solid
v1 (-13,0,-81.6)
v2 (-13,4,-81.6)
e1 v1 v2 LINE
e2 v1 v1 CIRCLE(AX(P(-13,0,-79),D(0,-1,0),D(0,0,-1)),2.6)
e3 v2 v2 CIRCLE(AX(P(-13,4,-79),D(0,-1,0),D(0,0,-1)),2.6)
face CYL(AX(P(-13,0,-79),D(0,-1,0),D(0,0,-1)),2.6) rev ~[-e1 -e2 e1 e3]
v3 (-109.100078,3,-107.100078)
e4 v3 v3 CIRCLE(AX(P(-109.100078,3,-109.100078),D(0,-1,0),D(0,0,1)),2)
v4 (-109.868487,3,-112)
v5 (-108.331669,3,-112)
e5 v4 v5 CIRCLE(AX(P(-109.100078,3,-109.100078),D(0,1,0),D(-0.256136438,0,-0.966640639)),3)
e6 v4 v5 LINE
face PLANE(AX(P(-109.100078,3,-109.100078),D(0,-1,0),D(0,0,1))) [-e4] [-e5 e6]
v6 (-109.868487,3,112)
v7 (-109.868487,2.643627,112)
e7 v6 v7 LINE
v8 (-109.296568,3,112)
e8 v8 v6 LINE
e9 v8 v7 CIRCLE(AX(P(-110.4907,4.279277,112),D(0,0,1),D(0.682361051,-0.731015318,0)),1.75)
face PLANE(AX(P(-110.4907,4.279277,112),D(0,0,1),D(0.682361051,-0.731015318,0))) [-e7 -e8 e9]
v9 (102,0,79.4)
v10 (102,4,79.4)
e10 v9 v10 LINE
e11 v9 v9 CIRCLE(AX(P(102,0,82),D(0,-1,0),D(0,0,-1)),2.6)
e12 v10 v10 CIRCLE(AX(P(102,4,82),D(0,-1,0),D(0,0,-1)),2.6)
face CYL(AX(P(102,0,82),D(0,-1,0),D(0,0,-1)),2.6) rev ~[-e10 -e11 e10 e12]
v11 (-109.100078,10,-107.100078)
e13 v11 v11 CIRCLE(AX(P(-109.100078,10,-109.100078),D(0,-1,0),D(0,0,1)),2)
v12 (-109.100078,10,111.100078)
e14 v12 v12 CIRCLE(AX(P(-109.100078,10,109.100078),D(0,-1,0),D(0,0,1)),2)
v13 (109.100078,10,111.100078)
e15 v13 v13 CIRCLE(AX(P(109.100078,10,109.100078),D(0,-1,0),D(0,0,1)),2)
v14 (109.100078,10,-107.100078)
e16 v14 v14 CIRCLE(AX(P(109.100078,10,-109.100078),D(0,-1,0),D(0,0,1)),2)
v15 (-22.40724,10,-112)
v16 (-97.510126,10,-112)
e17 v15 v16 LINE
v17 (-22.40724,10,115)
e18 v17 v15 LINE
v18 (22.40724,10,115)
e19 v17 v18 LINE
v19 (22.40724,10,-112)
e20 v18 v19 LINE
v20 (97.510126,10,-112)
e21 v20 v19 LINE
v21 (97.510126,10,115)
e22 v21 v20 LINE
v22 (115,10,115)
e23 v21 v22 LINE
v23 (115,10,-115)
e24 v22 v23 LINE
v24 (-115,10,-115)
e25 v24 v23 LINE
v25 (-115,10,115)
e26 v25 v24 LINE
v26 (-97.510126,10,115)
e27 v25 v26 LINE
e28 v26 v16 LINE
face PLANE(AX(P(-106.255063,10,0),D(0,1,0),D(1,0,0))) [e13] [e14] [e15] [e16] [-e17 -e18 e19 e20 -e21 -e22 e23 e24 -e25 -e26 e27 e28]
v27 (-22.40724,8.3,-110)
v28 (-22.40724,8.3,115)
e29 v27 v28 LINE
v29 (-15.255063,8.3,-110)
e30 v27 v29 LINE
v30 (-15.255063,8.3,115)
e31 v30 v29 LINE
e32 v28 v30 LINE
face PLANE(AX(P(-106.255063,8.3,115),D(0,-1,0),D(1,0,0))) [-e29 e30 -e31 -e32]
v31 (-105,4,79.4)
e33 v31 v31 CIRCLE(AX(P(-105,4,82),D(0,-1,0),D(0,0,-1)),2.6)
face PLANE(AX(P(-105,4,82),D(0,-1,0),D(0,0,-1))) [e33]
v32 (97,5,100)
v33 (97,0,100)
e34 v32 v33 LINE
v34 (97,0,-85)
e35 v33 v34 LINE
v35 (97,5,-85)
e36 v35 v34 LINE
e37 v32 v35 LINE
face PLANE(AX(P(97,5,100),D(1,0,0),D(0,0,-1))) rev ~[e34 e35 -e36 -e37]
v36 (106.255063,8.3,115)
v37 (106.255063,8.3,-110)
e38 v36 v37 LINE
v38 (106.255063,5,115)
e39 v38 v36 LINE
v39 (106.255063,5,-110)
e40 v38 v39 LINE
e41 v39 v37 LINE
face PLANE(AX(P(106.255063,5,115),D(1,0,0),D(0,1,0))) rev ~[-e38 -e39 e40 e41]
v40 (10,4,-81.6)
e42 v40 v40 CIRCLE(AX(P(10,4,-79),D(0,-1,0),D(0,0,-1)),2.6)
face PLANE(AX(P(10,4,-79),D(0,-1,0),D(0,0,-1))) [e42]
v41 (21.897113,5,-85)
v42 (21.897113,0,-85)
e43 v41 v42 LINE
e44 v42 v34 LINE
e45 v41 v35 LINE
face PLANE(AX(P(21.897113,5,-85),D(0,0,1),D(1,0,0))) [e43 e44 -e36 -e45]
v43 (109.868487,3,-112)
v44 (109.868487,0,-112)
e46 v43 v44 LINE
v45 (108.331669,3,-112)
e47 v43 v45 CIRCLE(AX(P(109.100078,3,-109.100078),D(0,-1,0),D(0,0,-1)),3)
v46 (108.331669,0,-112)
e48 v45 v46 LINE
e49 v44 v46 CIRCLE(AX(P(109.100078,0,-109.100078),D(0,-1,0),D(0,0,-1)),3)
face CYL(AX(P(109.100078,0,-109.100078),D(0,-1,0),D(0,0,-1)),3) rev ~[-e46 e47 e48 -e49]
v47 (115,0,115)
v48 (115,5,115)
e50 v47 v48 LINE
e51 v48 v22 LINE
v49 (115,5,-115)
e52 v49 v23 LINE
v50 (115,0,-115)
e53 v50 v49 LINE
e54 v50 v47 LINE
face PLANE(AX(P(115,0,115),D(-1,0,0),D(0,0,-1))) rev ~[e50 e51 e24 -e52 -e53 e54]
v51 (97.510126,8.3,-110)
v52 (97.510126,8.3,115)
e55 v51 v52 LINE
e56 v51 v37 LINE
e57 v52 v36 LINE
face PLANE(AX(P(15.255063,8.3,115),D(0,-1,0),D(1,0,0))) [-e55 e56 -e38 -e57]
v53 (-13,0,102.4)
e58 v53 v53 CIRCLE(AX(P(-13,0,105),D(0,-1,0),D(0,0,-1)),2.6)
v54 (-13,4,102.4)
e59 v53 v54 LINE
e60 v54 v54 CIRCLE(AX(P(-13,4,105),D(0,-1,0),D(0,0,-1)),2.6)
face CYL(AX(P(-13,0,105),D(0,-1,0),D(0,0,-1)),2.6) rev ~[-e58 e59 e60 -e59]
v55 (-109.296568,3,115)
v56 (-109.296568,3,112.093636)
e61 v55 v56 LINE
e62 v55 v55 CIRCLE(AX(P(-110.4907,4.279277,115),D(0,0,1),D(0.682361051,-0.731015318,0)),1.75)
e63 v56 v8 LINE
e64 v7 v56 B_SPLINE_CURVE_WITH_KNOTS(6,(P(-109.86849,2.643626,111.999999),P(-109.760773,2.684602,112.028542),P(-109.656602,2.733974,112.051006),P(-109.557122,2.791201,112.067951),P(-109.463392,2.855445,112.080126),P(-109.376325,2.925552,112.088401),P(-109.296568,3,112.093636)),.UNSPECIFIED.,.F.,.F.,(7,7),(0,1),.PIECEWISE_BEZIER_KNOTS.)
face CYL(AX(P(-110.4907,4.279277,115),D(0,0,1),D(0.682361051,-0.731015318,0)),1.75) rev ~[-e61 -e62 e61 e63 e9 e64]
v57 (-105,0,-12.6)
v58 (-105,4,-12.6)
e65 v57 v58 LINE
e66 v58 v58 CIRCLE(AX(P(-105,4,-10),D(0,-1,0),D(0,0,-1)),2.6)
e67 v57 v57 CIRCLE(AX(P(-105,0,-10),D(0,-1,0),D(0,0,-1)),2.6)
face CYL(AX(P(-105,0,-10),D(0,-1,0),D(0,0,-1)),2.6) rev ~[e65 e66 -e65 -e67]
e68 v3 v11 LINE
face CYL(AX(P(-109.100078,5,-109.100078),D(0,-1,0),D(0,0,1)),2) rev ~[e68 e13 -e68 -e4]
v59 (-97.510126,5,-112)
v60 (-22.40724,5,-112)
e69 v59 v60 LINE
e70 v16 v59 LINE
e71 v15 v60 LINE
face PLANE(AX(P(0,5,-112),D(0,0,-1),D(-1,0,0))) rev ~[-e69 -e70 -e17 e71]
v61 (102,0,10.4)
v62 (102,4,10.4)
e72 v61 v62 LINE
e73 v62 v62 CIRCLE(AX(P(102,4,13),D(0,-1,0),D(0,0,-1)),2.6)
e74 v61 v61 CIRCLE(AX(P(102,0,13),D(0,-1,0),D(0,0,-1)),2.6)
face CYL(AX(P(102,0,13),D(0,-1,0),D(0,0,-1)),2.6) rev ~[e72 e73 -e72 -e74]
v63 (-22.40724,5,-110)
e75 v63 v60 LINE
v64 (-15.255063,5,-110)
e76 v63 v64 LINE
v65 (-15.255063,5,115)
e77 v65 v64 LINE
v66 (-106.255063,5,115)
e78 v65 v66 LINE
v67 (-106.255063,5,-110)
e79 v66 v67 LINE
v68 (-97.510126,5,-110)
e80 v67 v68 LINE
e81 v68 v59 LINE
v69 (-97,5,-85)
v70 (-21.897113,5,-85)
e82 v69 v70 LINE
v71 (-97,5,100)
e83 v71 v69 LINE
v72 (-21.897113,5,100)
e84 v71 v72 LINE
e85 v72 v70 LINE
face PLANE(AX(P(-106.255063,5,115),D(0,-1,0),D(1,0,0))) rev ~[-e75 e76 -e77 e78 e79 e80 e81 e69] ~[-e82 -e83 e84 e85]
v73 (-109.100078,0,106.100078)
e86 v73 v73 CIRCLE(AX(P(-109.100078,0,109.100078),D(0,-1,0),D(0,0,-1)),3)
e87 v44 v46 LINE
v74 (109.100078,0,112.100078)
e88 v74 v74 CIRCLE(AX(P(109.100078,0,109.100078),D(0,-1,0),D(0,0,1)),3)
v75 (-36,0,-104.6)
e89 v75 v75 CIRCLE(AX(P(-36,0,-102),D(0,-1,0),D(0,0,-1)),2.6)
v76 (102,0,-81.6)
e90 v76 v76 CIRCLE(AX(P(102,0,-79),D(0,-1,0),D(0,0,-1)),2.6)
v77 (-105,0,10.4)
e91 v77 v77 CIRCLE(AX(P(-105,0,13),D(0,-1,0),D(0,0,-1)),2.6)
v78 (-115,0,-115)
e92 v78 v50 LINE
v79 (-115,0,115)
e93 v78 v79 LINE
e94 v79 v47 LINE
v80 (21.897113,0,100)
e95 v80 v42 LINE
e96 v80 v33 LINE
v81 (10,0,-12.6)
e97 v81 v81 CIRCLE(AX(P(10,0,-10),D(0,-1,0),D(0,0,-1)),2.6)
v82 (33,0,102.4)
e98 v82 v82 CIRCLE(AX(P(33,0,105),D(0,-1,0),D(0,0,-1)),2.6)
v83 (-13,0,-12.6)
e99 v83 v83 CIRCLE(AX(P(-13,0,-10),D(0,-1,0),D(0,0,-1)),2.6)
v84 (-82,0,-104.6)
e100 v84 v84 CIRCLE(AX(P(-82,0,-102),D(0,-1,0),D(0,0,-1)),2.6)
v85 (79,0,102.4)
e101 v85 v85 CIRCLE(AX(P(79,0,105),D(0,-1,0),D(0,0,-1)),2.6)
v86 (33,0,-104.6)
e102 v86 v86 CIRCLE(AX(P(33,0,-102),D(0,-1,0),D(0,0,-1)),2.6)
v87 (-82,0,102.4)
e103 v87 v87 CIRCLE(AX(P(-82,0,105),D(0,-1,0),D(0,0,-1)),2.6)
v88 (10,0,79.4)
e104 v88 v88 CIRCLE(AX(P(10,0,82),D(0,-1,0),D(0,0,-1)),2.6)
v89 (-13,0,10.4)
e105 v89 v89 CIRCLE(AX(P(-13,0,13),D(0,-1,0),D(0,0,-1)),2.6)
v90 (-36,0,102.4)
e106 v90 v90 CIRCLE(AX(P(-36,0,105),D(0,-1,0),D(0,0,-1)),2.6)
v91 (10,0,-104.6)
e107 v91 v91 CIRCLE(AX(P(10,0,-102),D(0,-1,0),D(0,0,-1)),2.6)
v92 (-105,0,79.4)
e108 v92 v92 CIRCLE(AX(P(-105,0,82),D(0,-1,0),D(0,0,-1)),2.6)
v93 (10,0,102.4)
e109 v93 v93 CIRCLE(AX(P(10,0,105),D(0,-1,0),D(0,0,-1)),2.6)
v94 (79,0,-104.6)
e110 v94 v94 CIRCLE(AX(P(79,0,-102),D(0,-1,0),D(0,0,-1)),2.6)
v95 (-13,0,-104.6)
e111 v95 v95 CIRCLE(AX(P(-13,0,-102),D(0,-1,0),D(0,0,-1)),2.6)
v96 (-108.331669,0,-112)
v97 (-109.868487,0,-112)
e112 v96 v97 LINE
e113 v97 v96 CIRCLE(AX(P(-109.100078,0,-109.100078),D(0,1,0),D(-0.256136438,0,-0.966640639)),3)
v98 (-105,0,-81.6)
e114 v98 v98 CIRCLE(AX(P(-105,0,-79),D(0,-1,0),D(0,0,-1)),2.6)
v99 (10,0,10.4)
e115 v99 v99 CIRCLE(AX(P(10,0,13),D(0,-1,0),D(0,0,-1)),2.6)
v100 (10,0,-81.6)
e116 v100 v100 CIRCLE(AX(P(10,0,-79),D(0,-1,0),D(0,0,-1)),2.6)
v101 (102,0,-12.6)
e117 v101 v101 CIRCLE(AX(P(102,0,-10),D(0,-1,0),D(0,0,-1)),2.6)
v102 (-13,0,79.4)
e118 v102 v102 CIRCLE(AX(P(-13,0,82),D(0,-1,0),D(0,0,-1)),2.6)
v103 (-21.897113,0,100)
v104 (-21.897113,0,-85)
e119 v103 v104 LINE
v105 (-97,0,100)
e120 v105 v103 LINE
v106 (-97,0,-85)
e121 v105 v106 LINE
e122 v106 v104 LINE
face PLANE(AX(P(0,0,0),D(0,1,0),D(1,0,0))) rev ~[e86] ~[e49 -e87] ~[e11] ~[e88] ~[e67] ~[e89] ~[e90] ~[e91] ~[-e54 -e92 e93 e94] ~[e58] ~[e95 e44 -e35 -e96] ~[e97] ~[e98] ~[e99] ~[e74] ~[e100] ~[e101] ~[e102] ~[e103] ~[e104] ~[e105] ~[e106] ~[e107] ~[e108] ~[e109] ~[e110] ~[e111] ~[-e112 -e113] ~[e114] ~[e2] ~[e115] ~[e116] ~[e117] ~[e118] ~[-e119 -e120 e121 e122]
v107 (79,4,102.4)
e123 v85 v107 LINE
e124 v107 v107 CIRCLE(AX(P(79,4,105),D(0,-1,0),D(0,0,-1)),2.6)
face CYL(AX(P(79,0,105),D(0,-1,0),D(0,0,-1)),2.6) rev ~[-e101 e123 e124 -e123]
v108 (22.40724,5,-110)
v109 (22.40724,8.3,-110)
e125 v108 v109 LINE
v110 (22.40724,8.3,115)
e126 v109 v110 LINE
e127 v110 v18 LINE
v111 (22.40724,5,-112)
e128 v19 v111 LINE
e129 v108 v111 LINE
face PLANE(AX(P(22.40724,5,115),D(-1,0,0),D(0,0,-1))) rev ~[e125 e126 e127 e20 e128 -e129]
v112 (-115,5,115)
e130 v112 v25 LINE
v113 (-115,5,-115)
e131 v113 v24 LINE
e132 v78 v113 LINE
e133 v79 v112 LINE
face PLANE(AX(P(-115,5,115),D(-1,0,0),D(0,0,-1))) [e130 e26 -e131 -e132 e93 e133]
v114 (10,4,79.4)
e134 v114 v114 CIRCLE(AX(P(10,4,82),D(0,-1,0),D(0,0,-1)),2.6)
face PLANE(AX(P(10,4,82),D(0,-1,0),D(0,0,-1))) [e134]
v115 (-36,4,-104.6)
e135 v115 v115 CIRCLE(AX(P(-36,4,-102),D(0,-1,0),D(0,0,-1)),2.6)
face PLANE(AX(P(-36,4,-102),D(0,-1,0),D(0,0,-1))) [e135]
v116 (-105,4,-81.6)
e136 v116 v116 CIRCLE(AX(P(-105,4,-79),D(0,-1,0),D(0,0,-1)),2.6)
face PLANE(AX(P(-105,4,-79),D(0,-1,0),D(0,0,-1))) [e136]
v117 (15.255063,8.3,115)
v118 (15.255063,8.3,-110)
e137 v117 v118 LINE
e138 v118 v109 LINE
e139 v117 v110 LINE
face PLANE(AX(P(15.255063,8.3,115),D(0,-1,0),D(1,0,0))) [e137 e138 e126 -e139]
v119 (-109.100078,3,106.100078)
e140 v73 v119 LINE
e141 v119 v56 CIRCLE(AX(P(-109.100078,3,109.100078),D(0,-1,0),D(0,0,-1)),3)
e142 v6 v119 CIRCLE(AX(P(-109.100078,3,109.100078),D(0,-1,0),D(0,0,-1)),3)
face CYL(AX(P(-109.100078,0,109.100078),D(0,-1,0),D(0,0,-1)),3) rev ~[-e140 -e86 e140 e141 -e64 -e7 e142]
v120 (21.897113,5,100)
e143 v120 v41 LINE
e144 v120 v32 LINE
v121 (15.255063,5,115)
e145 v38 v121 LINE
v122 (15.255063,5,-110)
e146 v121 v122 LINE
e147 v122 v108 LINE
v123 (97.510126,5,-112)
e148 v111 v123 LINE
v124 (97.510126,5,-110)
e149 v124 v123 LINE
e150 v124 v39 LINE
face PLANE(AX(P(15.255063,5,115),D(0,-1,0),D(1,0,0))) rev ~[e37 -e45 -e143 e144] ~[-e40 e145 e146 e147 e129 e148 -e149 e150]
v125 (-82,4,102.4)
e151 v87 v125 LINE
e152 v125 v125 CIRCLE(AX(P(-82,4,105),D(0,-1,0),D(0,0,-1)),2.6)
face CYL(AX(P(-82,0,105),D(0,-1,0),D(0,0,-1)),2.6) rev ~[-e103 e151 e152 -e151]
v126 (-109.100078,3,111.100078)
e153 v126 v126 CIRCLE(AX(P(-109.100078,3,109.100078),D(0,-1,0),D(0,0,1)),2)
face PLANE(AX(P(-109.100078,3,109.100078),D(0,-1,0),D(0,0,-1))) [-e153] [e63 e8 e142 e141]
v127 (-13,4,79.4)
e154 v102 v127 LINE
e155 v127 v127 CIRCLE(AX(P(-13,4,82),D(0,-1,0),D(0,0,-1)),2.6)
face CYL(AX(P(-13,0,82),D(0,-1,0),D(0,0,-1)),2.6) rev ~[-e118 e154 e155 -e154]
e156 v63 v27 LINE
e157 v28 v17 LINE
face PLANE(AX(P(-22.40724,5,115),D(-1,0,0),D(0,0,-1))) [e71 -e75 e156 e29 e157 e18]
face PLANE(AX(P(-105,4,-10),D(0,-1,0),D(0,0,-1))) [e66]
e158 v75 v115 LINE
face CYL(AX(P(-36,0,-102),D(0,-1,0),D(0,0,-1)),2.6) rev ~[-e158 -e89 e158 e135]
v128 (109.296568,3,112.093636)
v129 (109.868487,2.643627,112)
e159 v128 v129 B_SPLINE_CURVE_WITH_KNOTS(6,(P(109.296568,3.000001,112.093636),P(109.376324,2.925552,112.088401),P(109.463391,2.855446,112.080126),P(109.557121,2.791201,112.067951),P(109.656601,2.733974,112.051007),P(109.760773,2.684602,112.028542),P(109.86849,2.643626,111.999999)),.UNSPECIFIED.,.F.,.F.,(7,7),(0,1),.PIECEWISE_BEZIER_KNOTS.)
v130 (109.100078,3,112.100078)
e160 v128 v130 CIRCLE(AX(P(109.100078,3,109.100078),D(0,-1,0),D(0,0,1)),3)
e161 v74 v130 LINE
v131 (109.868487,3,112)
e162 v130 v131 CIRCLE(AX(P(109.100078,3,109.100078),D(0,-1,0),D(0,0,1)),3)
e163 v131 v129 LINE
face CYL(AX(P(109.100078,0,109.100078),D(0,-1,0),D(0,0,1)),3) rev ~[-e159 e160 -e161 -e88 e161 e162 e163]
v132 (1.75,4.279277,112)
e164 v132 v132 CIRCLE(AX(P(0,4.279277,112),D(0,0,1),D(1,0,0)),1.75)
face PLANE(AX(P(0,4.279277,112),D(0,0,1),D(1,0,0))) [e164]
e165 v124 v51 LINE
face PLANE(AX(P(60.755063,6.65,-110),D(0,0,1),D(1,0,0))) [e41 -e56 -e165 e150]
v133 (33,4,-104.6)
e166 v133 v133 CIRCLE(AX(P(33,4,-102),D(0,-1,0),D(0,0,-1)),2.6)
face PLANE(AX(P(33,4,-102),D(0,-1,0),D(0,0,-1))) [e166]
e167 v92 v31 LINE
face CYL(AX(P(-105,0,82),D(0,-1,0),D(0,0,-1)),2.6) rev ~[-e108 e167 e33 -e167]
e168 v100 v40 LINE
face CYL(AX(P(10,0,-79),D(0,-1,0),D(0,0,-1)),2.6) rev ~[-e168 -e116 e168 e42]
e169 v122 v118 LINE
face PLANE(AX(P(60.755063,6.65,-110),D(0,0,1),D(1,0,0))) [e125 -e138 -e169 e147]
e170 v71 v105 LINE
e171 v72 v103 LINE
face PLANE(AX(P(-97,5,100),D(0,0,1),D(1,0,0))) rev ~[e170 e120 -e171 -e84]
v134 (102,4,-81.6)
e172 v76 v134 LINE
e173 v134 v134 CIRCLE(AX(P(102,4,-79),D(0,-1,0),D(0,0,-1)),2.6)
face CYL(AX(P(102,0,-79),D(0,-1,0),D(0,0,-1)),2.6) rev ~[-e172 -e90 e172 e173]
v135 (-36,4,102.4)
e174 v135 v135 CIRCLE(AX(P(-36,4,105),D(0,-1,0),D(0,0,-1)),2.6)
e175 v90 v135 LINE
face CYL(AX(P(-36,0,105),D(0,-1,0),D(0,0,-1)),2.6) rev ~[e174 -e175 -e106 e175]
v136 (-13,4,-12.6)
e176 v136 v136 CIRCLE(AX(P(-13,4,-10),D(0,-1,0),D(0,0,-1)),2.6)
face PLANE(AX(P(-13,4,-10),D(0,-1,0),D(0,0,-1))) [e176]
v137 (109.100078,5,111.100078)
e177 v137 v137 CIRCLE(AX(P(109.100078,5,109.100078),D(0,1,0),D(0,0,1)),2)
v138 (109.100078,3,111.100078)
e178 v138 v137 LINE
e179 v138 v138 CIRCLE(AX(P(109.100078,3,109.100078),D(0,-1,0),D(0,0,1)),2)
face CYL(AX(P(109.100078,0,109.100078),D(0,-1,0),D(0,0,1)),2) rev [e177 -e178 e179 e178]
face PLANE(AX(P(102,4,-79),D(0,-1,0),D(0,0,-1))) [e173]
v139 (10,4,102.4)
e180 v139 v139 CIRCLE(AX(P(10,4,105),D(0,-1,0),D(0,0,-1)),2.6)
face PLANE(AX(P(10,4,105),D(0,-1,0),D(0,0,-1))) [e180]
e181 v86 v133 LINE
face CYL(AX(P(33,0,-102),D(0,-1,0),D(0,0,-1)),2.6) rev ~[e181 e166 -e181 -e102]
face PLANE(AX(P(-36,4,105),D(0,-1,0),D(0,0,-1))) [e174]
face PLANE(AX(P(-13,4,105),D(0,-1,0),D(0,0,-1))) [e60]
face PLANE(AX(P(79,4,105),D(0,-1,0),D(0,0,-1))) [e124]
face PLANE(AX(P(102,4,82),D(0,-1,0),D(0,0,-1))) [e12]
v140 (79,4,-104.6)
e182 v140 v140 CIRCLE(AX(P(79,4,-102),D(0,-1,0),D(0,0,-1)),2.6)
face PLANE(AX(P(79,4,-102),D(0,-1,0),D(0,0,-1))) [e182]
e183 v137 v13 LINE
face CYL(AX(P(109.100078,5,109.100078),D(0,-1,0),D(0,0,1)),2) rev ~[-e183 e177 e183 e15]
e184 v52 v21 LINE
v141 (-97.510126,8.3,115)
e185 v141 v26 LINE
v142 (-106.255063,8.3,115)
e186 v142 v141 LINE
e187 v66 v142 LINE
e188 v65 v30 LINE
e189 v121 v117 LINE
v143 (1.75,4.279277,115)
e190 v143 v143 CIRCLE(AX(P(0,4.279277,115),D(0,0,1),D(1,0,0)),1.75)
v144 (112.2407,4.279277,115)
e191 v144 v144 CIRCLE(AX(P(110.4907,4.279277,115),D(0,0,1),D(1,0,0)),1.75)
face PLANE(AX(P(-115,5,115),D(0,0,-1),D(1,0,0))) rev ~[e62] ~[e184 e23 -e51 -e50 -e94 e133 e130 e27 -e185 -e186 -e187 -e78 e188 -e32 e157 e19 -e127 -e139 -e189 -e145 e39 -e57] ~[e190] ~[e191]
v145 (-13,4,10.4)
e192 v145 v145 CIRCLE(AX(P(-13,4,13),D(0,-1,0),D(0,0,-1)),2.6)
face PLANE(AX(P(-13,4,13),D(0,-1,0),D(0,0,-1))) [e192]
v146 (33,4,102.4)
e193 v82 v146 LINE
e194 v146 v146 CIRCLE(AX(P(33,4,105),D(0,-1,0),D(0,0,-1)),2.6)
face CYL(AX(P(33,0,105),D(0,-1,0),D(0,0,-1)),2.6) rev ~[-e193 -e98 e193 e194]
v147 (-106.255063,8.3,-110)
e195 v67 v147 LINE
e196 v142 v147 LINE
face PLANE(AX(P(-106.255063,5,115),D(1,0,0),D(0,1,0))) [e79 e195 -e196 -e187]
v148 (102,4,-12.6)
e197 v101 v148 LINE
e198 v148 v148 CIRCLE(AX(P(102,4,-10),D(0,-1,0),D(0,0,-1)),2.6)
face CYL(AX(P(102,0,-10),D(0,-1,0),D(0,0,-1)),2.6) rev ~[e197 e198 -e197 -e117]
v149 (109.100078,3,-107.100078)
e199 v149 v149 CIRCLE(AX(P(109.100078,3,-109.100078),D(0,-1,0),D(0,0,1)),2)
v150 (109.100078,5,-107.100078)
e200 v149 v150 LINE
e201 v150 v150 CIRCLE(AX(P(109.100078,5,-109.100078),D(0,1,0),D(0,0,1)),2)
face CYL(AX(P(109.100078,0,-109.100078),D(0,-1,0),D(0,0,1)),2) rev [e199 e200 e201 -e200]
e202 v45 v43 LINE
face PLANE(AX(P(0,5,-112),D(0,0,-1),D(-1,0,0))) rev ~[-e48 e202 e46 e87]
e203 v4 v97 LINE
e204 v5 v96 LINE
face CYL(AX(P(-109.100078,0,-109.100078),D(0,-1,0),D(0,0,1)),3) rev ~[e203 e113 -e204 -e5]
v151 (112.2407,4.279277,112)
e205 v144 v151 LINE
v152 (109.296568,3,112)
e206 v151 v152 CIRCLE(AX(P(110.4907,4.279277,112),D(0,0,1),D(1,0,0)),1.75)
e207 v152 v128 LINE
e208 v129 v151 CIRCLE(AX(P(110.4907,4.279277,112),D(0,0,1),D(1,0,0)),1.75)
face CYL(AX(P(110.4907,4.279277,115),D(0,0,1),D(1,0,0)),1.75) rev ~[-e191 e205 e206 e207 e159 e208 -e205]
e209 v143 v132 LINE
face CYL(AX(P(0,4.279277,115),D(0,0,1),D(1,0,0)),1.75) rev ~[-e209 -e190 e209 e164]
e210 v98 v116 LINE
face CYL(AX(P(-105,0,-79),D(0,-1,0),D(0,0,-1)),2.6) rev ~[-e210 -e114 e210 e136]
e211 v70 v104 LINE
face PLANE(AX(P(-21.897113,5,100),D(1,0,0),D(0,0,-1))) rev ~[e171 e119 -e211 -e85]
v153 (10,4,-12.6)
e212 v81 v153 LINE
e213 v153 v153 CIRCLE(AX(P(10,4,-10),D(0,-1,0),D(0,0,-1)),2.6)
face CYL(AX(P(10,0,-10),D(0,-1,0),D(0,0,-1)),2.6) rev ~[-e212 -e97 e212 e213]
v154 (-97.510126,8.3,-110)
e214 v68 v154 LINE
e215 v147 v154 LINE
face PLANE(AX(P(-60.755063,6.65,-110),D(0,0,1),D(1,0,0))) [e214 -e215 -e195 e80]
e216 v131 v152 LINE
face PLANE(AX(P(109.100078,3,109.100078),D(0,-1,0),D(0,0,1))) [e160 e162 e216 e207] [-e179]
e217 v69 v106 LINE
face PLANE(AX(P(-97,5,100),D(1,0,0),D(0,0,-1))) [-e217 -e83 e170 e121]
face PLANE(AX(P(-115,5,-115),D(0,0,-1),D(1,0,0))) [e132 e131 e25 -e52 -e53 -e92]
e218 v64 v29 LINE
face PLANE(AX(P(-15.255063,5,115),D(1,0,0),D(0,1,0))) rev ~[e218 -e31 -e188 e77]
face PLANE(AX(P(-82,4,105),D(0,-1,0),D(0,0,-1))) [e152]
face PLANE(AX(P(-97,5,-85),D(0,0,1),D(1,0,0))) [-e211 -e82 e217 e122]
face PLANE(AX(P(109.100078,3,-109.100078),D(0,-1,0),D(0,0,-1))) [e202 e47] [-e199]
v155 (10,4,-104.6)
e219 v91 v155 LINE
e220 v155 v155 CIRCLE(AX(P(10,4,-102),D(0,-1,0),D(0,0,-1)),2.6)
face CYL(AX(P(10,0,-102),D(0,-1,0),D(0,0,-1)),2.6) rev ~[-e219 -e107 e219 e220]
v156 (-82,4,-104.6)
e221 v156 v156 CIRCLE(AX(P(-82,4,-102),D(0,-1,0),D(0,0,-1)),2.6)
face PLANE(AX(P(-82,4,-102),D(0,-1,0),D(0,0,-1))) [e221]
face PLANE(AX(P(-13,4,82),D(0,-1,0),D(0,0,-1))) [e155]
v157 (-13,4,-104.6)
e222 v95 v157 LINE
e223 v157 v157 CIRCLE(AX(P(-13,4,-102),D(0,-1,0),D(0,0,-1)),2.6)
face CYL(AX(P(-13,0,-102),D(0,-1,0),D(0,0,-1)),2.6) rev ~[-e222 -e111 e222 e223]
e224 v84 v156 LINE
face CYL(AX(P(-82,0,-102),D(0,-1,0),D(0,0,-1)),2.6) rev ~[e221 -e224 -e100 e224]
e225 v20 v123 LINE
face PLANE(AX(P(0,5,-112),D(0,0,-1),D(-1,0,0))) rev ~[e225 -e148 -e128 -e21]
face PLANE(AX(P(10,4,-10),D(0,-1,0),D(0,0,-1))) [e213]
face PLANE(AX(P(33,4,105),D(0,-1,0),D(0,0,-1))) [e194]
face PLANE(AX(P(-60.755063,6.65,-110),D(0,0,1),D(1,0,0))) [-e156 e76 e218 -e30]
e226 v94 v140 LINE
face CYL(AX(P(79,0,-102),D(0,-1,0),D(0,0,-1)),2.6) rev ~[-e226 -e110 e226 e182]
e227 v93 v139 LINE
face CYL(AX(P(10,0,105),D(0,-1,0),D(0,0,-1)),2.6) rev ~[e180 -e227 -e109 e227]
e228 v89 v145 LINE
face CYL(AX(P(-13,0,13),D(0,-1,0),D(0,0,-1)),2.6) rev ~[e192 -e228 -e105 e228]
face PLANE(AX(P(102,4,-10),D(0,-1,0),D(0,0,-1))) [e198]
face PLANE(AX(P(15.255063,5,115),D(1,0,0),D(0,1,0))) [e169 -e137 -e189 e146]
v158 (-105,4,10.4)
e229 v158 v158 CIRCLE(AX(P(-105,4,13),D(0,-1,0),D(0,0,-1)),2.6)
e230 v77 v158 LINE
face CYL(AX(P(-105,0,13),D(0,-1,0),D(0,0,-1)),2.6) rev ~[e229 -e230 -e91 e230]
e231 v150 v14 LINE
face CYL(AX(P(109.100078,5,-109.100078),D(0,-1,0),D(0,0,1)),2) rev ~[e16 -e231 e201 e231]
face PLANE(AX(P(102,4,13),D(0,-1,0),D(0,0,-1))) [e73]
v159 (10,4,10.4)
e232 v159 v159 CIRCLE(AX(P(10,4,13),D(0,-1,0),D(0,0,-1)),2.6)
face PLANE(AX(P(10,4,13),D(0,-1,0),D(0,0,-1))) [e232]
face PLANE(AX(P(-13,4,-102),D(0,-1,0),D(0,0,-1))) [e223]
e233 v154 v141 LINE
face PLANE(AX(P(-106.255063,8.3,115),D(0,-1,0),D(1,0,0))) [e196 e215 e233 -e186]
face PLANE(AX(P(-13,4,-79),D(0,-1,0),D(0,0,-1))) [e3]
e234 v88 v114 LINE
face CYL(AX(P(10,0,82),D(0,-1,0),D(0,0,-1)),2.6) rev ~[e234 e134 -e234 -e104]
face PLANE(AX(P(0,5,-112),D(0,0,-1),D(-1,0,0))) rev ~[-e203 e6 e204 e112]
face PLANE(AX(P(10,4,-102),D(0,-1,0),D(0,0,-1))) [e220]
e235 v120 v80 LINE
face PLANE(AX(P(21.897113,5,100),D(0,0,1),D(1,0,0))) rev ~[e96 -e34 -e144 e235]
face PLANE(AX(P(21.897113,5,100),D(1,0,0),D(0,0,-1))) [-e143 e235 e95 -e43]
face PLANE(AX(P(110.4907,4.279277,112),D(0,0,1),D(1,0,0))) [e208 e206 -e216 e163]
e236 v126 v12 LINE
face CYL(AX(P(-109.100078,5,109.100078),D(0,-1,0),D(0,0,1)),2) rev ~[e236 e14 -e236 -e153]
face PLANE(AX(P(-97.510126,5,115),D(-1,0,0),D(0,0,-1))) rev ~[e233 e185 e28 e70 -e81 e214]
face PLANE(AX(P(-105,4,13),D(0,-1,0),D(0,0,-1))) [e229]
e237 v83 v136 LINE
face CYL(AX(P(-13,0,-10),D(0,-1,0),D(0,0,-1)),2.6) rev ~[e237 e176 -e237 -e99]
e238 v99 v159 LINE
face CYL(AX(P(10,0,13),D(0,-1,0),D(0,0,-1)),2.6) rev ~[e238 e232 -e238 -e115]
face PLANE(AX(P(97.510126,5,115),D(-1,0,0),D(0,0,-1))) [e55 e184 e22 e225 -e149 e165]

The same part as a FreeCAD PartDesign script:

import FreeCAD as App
import Part
import Sketcher

doc = App.newDocument("Part")
body = doc.addObject("PartDesign::Body", "Body")

# Sketch on XZ plane
sketch1 = body.newObject("Sketcher::SketchObject", "Sketch")
sketch1.AttachmentSupport = (doc.getObject("XZ_Plane"), [""])
sketch1.MapMode = "FlatFace"
sketch1.addGeometry(Part.LineSegment(App.Vector(-115, -115, 0), App.Vector(-115, 115, 0)), False)
sketch1.addGeometry(Part.LineSegment(App.Vector(-115, 115, 0), App.Vector(115, 115, 0)), False)
sketch1.addGeometry(Part.LineSegment(App.Vector(115, 115, 0), App.Vector(115, -115, 0)), False)
sketch1.addGeometry(Part.LineSegment(App.Vector(115, -115, 0), App.Vector(-115, -115, 0)), False)
sketch1.addGeometry(Part.Circle(App.Vector(-109.100078, 109.100078, 0), App.Vector(0, 0, 1), 2), False)
sketch1.addGeometry(Part.Circle(App.Vector(109.100078, 109.100078, 0), App.Vector(0, 0, 1), 2), False)
sketch1.addGeometry(Part.Circle(App.Vector(-109.100078, -109.100078, 0), App.Vector(0, 0, 1), 2), False)
sketch1.addGeometry(Part.Circle(App.Vector(109.100078, -109.100078, 0), App.Vector(0, 0, 1), 2), False)
sketch1.addConstraint(Sketcher.Constraint("Coincident", 0, 2, 1, 1))
sketch1.addConstraint(Sketcher.Constraint("Coincident", 1, 2, 2, 1))
sketch1.addConstraint(Sketcher.Constraint("Coincident", 2, 2, 3, 1))
sketch1.addConstraint(Sketcher.Constraint("Coincident", 3, 2, 0, 1))
sketch1.addConstraint(Sketcher.Constraint("Vertical", 0))
sketch1.addConstraint(Sketcher.Constraint("Horizontal", 1))
sketch1.addConstraint(Sketcher.Constraint("Vertical", 2))
sketch1.addConstraint(Sketcher.Constraint("Horizontal", 3))
sketch1.addConstraint(Sketcher.Constraint("Equal", 4, 5))
sketch1.addConstraint(Sketcher.Constraint("Equal", 5, 6))
sketch1.addConstraint(Sketcher.Constraint("Equal", 6, 7))
sketch1.addConstraint(Sketcher.Constraint("Symmetric", 5, 3, 6, 3, -1, 1))
sketch1.addConstraint(Sketcher.Constraint("Symmetric", 4, 3, 7, 3, -1, 1))
sketch1.addConstraint(Sketcher.Constraint("Symmetric", 0, 2, 2, 2, -1, 1))
sketch1.addConstraint(Sketcher.Constraint("Symmetric", 4, 3, 5, 3, -2))
sketch1.addConstraint(Sketcher.Constraint("Equal", 3, 0))
sketch1.addConstraint(Sketcher.Constraint("Diameter", 4, 4.0))
sketch1.addConstraint(Sketcher.Constraint("DistanceX", 1, 1, 1, 2, 230.0))
sketch1.addConstraint(Sketcher.Constraint("DistanceX", 4, 3, -1, 1, 109.100078))
sketch1.addConstraint(Sketcher.Constraint("DistanceY", -1, 1, 4, 3, 109.100078))
pad1 = body.newObject("PartDesign::Pad", "Pad")
pad1.Profile = sketch1
pad1.Length = 5
pad1.Reversed = True

# Sketch on XZ plane
sketch2 = body.newObject("Sketcher::SketchObject", "Sketch001")
sketch2.AttachmentSupport = (doc.getObject("XZ_Plane"), [""])
sketch2.MapMode = "FlatFace"
sketch2.AttachmentOffset = App.Placement(App.Vector(0, 0, -5), App.Rotation())
sketch2.addGeometry(Part.LineSegment(App.Vector(-115, -115, 0), App.Vector(-115, 115, 0)), False)
sketch2.addGeometry(Part.LineSegment(App.Vector(-115, 115, 0), App.Vector(-98, 115, 0)), False)
sketch2.addGeometry(Part.LineSegment(App.Vector(-98, 115, 0), App.Vector(-98, -115, 0)), False)
sketch2.addGeometry(Part.LineSegment(App.Vector(-98, -115, 0), App.Vector(-115, -115, 0)), False)
sketch2.addGeometry(Part.LineSegment(App.Vector(-22, -115, 0), App.Vector(-22, 115, 0)), False)
sketch2.addGeometry(Part.LineSegment(App.Vector(-22, 115, 0), App.Vector(22, 115, 0)), False)
sketch2.addGeometry(Part.LineSegment(App.Vector(22, 115, 0), App.Vector(22, -115, 0)), False)
sketch2.addGeometry(Part.LineSegment(App.Vector(22, -115, 0), App.Vector(-22, -115, 0)), False)
sketch2.addGeometry(Part.LineSegment(App.Vector(98, -115, 0), App.Vector(98, 115, 0)), False)
sketch2.addGeometry(Part.LineSegment(App.Vector(98, 115, 0), App.Vector(115, 115, 0)), False)
sketch2.addGeometry(Part.LineSegment(App.Vector(115, 115, 0), App.Vector(115, -115, 0)), False)
sketch2.addGeometry(Part.LineSegment(App.Vector(115, -115, 0), App.Vector(98, -115, 0)), False)
sketch2.addConstraint(Sketcher.Constraint("Coincident", 0, 2, 1, 1))
sketch2.addConstraint(Sketcher.Constraint("Coincident", 1, 2, 2, 1))
sketch2.addConstraint(Sketcher.Constraint("Coincident", 2, 2, 3, 1))
sketch2.addConstraint(Sketcher.Constraint("Coincident", 3, 2, 0, 1))
sketch2.addConstraint(Sketcher.Constraint("Coincident", 4, 2, 5, 1))
sketch2.addConstraint(Sketcher.Constraint("Coincident", 5, 2, 6, 1))
sketch2.addConstraint(Sketcher.Constraint("Coincident", 6, 2, 7, 1))
sketch2.addConstraint(Sketcher.Constraint("Coincident", 7, 2, 4, 1))
sketch2.addConstraint(Sketcher.Constraint("Coincident", 8, 2, 9, 1))
sketch2.addConstraint(Sketcher.Constraint("Coincident", 9, 2, 10, 1))
sketch2.addConstraint(Sketcher.Constraint("Coincident", 10, 2, 11, 1))
sketch2.addConstraint(Sketcher.Constraint("Coincident", 11, 2, 8, 1))
sketch2.addConstraint(Sketcher.Constraint("Vertical", 0))
sketch2.addConstraint(Sketcher.Constraint("Horizontal", 1))
sketch2.addConstraint(Sketcher.Constraint("Vertical", 2))
sketch2.addConstraint(Sketcher.Constraint("Horizontal", 3))
sketch2.addConstraint(Sketcher.Constraint("Vertical", 4))
sketch2.addConstraint(Sketcher.Constraint("Horizontal", 5))
sketch2.addConstraint(Sketcher.Constraint("Vertical", 6))
sketch2.addConstraint(Sketcher.Constraint("Horizontal", 7))
sketch2.addConstraint(Sketcher.Constraint("Vertical", 8))
sketch2.addConstraint(Sketcher.Constraint("Horizontal", 9))
sketch2.addConstraint(Sketcher.Constraint("Vertical", 10))
sketch2.addConstraint(Sketcher.Constraint("Horizontal", 11))
sketch2.addConstraint(Sketcher.Constraint("Symmetric", 4, 2, 6, 2, -1, 1))
sketch2.addConstraint(Sketcher.Constraint("Symmetric", 2, 2, 8, 2, -1, 1))
sketch2.addConstraint(Sketcher.Constraint("Symmetric", 0, 2, 10, 2, -1, 1))
sketch2.addConstraint(Sketcher.Constraint("Horizontal", 1, 2, 4, 2))
sketch2.addConstraint(Sketcher.Constraint("Horizontal", 3, 2, 6, 2))
sketch2.addConstraint(Sketcher.Constraint("DistanceY", 0, 1, 0, 2, 230.0))
sketch2.addConstraint(Sketcher.Constraint("DistanceX", 0, 2, -1, 1, 115.0))
sketch2.addConstraint(Sketcher.Constraint("DistanceX", 5, 1, 5, 2, 44.81448))
sketch2.addConstraint(Sketcher.Constraint("DistanceX", 1, 1, 1, 2, 17.489874))
pad2 = body.newObject("PartDesign::Pad", "Pad001")
pad2.Profile = sketch2
pad2.Length = 5
pad2.Reversed = True

# Sketch on XY plane
sketch3 = body.newObject("Sketcher::SketchObject", "Sketch002")
sketch3.AttachmentSupport = (doc.getObject("XY_Plane"), [""])
sketch3.MapMode = "FlatFace"
sketch3.AttachmentOffset = App.Placement(App.Vector(0, 0, 115), App.Rotation())
sketch3.addGeometry(Part.LineSegment(App.Vector(-106.3, 8.3, 0), App.Vector(-106.3, 5, 0)), False)
sketch3.addGeometry(Part.LineSegment(App.Vector(-106.3, 5, 0), App.Vector(-15.3, 5, 0)), False)
sketch3.addGeometry(Part.LineSegment(App.Vector(-15.3, 5, 0), App.Vector(-15.3, 8.3, 0)), False)
sketch3.addGeometry(Part.LineSegment(App.Vector(-15.3, 8.3, 0), App.Vector(-106.3, 8.3, 0)), False)
sketch3.addGeometry(Part.LineSegment(App.Vector(15.3, 8.3, 0), App.Vector(15.3, 5, 0)), False)
sketch3.addGeometry(Part.LineSegment(App.Vector(15.3, 5, 0), App.Vector(106.3, 5, 0)), False)
sketch3.addGeometry(Part.LineSegment(App.Vector(106.3, 5, 0), App.Vector(106.3, 8.3, 0)), False)
sketch3.addGeometry(Part.LineSegment(App.Vector(106.3, 8.3, 0), App.Vector(15.3, 8.3, 0)), False)
sketch3.addConstraint(Sketcher.Constraint("Coincident", 0, 2, 1, 1))
sketch3.addConstraint(Sketcher.Constraint("Coincident", 1, 2, 2, 1))
sketch3.addConstraint(Sketcher.Constraint("Coincident", 2, 2, 3, 1))
sketch3.addConstraint(Sketcher.Constraint("Coincident", 3, 2, 0, 1))
sketch3.addConstraint(Sketcher.Constraint("Coincident", 4, 2, 5, 1))
sketch3.addConstraint(Sketcher.Constraint("Coincident", 5, 2, 6, 1))
sketch3.addConstraint(Sketcher.Constraint("Coincident", 6, 2, 7, 1))
sketch3.addConstraint(Sketcher.Constraint("Coincident", 7, 2, 4, 1))
sketch3.addConstraint(Sketcher.Constraint("Vertical", 0))
sketch3.addConstraint(Sketcher.Constraint("Horizontal", 1))
sketch3.addConstraint(Sketcher.Constraint("Vertical", 2))
sketch3.addConstraint(Sketcher.Constraint("Horizontal", 3))
sketch3.addConstraint(Sketcher.Constraint("Vertical", 4))
sketch3.addConstraint(Sketcher.Constraint("Horizontal", 5))
sketch3.addConstraint(Sketcher.Constraint("Vertical", 6))
sketch3.addConstraint(Sketcher.Constraint("Horizontal", 7))
sketch3.addConstraint(Sketcher.Constraint("Symmetric", 1, 2, 4, 2, -2))
sketch3.addConstraint(Sketcher.Constraint("Symmetric", 3, 2, 6, 2, -2))
sketch3.addConstraint(Sketcher.Constraint("DistanceX", 1, 1, 1, 2, 91.0))
sketch3.addConstraint(Sketcher.Constraint("DistanceY", 0, 2, 0, 1, 3.3))
sketch3.addConstraint(Sketcher.Constraint("DistanceY", -1, 1, 0, 2, 5.0))
sketch3.addConstraint(Sketcher.Constraint("DistanceX", 0, 2, -1, 1, 106.255063))
pocket1 = body.newObject("PartDesign::Pocket", "Pocket")
pocket1.Profile = sketch3
pocket1.Length = 225

# Sketch on XZ plane
sketch4 = body.newObject("Sketcher::SketchObject", "Sketch003")
sketch4.AttachmentSupport = (doc.getObject("XZ_Plane"), [""])
sketch4.MapMode = "FlatFace"
sketch4.AttachmentOffset = App.Placement(App.Vector(0, 0, -5), App.Rotation())
sketch4.addGeometry(Part.LineSegment(App.Vector(-97, -85, 0), App.Vector(-97, 100, 0)), False)
sketch4.addGeometry(Part.LineSegment(App.Vector(-97, 100, 0), App.Vector(-22, 100, 0)), False)
sketch4.addGeometry(Part.LineSegment(App.Vector(-22, 100, 0), App.Vector(-22, -85, 0)), False)
sketch4.addGeometry(Part.LineSegment(App.Vector(-22, -85, 0), App.Vector(-97, -85, 0)), False)
sketch4.addGeometry(Part.LineSegment(App.Vector(22, -85, 0), App.Vector(22, 100, 0)), False)
sketch4.addGeometry(Part.LineSegment(App.Vector(22, 100, 0), App.Vector(97, 100, 0)), False)
sketch4.addGeometry(Part.LineSegment(App.Vector(97, 100, 0), App.Vector(97, -85, 0)), False)
sketch4.addGeometry(Part.LineSegment(App.Vector(97, -85, 0), App.Vector(22, -85, 0)), False)
sketch4.addConstraint(Sketcher.Constraint("Coincident", 0, 2, 1, 1))
sketch4.addConstraint(Sketcher.Constraint("Coincident", 1, 2, 2, 1))
sketch4.addConstraint(Sketcher.Constraint("Coincident", 2, 2, 3, 1))
sketch4.addConstraint(Sketcher.Constraint("Coincident", 3, 2, 0, 1))
sketch4.addConstraint(Sketcher.Constraint("Coincident", 4, 2, 5, 1))
sketch4.addConstraint(Sketcher.Constraint("Coincident", 5, 2, 6, 1))
sketch4.addConstraint(Sketcher.Constraint("Coincident", 6, 2, 7, 1))
sketch4.addConstraint(Sketcher.Constraint("Coincident", 7, 2, 4, 1))
sketch4.addConstraint(Sketcher.Constraint("Vertical", 0))
sketch4.addConstraint(Sketcher.Constraint("Horizontal", 1))
sketch4.addConstraint(Sketcher.Constraint("Vertical", 2))
sketch4.addConstraint(Sketcher.Constraint("Horizontal", 3))
sketch4.addConstraint(Sketcher.Constraint("Vertical", 4))
sketch4.addConstraint(Sketcher.Constraint("Horizontal", 5))
sketch4.addConstraint(Sketcher.Constraint("Vertical", 6))
sketch4.addConstraint(Sketcher.Constraint("Horizontal", 7))
sketch4.addConstraint(Sketcher.Constraint("Symmetric", 1, 2, 4, 2, -2))
sketch4.addConstraint(Sketcher.Constraint("Symmetric", 3, 2, 6, 2, -2))
sketch4.addConstraint(Sketcher.Constraint("DistanceY", 0, 1, 0, 2, 185.0))
sketch4.addConstraint(Sketcher.Constraint("DistanceX", 0, 2, -1, 1, 97.0))
sketch4.addConstraint(Sketcher.Constraint("DistanceY", -1, 1, 0, 2, 100.0))
sketch4.addConstraint(Sketcher.Constraint("DistanceX", 1, 1, 1, 2, 75.102887))
pocket2 = body.newObject("PartDesign::Pocket", "Pocket001")
pocket2.Profile = sketch4
pocket2.Length = 256
pocket2.Reversed = True

# Sketch on XZ plane
sketch5 = body.newObject("Sketcher::SketchObject", "Sketch004")
sketch5.AttachmentSupport = (doc.getObject("XZ_Plane"), [""])
sketch5.MapMode = "FlatFace"
sketch5.addGeometry(Part.Circle(App.Vector(-82, 105, 0), App.Vector(0, 0, 1), 2.6), False)
sketch5.addGeometry(Part.Circle(App.Vector(-36, 105, 0), App.Vector(0, 0, 1), 2.6), False)
sketch5.addGeometry(Part.Circle(App.Vector(-13, 105, 0), App.Vector(0, 0, 1), 2.6), False)
sketch5.addGeometry(Part.Circle(App.Vector(10, 105, 0), App.Vector(0, 0, 1), 2.6), False)
sketch5.addGeometry(Part.Circle(App.Vector(33, 105, 0), App.Vector(0, 0, 1), 2.6), False)
sketch5.addGeometry(Part.Circle(App.Vector(79, 105, 0), App.Vector(0, 0, 1), 2.6), False)
sketch5.addGeometry(Part.Circle(App.Vector(-13, 82, 0), App.Vector(0, 0, 1), 2.6), False)
sketch5.addGeometry(Part.Circle(App.Vector(10, 82, 0), App.Vector(0, 0, 1), 2.6), False)
sketch5.addGeometry(Part.Circle(App.Vector(102, 82, 0), App.Vector(0, 0, 1), 2.6), False)
sketch5.addGeometry(Part.Circle(App.Vector(-13, 13, 0), App.Vector(0, 0, 1), 2.6), False)
sketch5.addGeometry(Part.Circle(App.Vector(10, 13, 0), App.Vector(0, 0, 1), 2.6), False)
sketch5.addGeometry(Part.Circle(App.Vector(102, 13, 0), App.Vector(0, 0, 1), 2.6), False)
sketch5.addGeometry(Part.Circle(App.Vector(-13, -10, 0), App.Vector(0, 0, 1), 2.6), False)
sketch5.addGeometry(Part.Circle(App.Vector(10, -10, 0), App.Vector(0, 0, 1), 2.6), False)
sketch5.addGeometry(Part.Circle(App.Vector(102, -10, 0), App.Vector(0, 0, 1), 2.6), False)
sketch5.addGeometry(Part.Circle(App.Vector(-13, -79, 0), App.Vector(0, 0, 1), 2.6), False)
sketch5.addGeometry(Part.Circle(App.Vector(10, -79, 0), App.Vector(0, 0, 1), 2.6), False)
sketch5.addGeometry(Part.Circle(App.Vector(102, -79, 0), App.Vector(0, 0, 1), 2.6), False)
sketch5.addGeometry(Part.Circle(App.Vector(-82, -102, 0), App.Vector(0, 0, 1), 2.6), False)
sketch5.addGeometry(Part.Circle(App.Vector(-36, -102, 0), App.Vector(0, 0, 1), 2.6), False)
sketch5.addGeometry(Part.Circle(App.Vector(-13, -102, 0), App.Vector(0, 0, 1), 2.6), False)
sketch5.addGeometry(Part.Circle(App.Vector(10, -102, 0), App.Vector(0, 0, 1), 2.6), False)
sketch5.addGeometry(Part.Circle(App.Vector(33, -102, 0), App.Vector(0, 0, 1), 2.6), False)
sketch5.addGeometry(Part.Circle(App.Vector(79, -102, 0), App.Vector(0, 0, 1), 2.6), False)
sketch5.addGeometry(Part.Circle(App.Vector(-105, 82, 0), App.Vector(0, 0, 1), 2.6), False)
sketch5.addGeometry(Part.Circle(App.Vector(-105, 13, 0), App.Vector(0, 0, 1), 2.6), False)
sketch5.addGeometry(Part.Circle(App.Vector(-105, -10, 0), App.Vector(0, 0, 1), 2.6), False)
sketch5.addGeometry(Part.Circle(App.Vector(-105, -79, 0), App.Vector(0, 0, 1), 2.6), False)
sketch5.addConstraint(Sketcher.Constraint("Equal", 0, 1))
sketch5.addConstraint(Sketcher.Constraint("Equal", 1, 2))
sketch5.addConstraint(Sketcher.Constraint("Equal", 2, 3))
sketch5.addConstraint(Sketcher.Constraint("Equal", 3, 4))
sketch5.addConstraint(Sketcher.Constraint("Equal", 4, 5))
sketch5.addConstraint(Sketcher.Constraint("Equal", 5, 6))
sketch5.addConstraint(Sketcher.Constraint("Equal", 6, 7))
sketch5.addConstraint(Sketcher.Constraint("Equal", 7, 8))
sketch5.addConstraint(Sketcher.Constraint("Equal", 8, 9))
sketch5.addConstraint(Sketcher.Constraint("Equal", 9, 10))
sketch5.addConstraint(Sketcher.Constraint("Equal", 10, 11))
sketch5.addConstraint(Sketcher.Constraint("Equal", 11, 12))
sketch5.addConstraint(Sketcher.Constraint("Equal", 12, 13))
sketch5.addConstraint(Sketcher.Constraint("Equal", 13, 14))
sketch5.addConstraint(Sketcher.Constraint("Equal", 14, 15))
sketch5.addConstraint(Sketcher.Constraint("Equal", 15, 16))
sketch5.addConstraint(Sketcher.Constraint("Equal", 16, 17))
sketch5.addConstraint(Sketcher.Constraint("Equal", 17, 18))
sketch5.addConstraint(Sketcher.Constraint("Equal", 18, 19))
sketch5.addConstraint(Sketcher.Constraint("Equal", 19, 20))
sketch5.addConstraint(Sketcher.Constraint("Equal", 20, 21))
sketch5.addConstraint(Sketcher.Constraint("Equal", 21, 22))
sketch5.addConstraint(Sketcher.Constraint("Equal", 22, 23))
sketch5.addConstraint(Sketcher.Constraint("Equal", 23, 24))
sketch5.addConstraint(Sketcher.Constraint("Equal", 24, 25))
sketch5.addConstraint(Sketcher.Constraint("Equal", 25, 26))
sketch5.addConstraint(Sketcher.Constraint("Equal", 26, 27))
sketch5.addConstraint(Sketcher.Constraint("Horizontal", 0, 3, 1, 3))
sketch5.addConstraint(Sketcher.Constraint("Horizontal", 1, 3, 2, 3))
sketch5.addConstraint(Sketcher.Constraint("Horizontal", 2, 3, 3, 3))
sketch5.addConstraint(Sketcher.Constraint("Horizontal", 3, 3, 4, 3))
sketch5.addConstraint(Sketcher.Constraint("Horizontal", 4, 3, 5, 3))
sketch5.addConstraint(Sketcher.Constraint("Horizontal", 6, 3, 7, 3))
sketch5.addConstraint(Sketcher.Constraint("Horizontal", 7, 3, 8, 3))
sketch5.addConstraint(Sketcher.Constraint("Horizontal", 9, 3, 10, 3))
sketch5.addConstraint(Sketcher.Constraint("Horizontal", 10, 3, 11, 3))
sketch5.addConstraint(Sketcher.Constraint("Horizontal", 12, 3, 13, 3))
sketch5.addConstraint(Sketcher.Constraint("Horizontal", 13, 3, 14, 3))
sketch5.addConstraint(Sketcher.Constraint("Horizontal", 15, 3, 16, 3))
sketch5.addConstraint(Sketcher.Constraint("Horizontal", 16, 3, 17, 3))
sketch5.addConstraint(Sketcher.Constraint("Horizontal", 18, 3, 19, 3))
sketch5.addConstraint(Sketcher.Constraint("Horizontal", 19, 3, 20, 3))
sketch5.addConstraint(Sketcher.Constraint("Horizontal", 20, 3, 21, 3))
sketch5.addConstraint(Sketcher.Constraint("Horizontal", 21, 3, 22, 3))
sketch5.addConstraint(Sketcher.Constraint("Horizontal", 22, 3, 23, 3))
sketch5.addConstraint(Sketcher.Constraint("Horizontal", 8, 3, 24, 3))
sketch5.addConstraint(Sketcher.Constraint("Horizontal", 11, 3, 25, 3))
sketch5.addConstraint(Sketcher.Constraint("Horizontal", 14, 3, 26, 3))
sketch5.addConstraint(Sketcher.Constraint("Horizontal", 17, 3, 27, 3))
sketch5.addConstraint(Sketcher.Constraint("Vertical", 2, 3, 6, 3))
sketch5.addConstraint(Sketcher.Constraint("Vertical", 3, 3, 7, 3))
sketch5.addConstraint(Sketcher.Constraint("Vertical", 6, 3, 9, 3))
sketch5.addConstraint(Sketcher.Constraint("Vertical", 7, 3, 10, 3))
sketch5.addConstraint(Sketcher.Constraint("Vertical", 8, 3, 11, 3))
sketch5.addConstraint(Sketcher.Constraint("Vertical", 9, 3, 12, 3))
sketch5.addConstraint(Sketcher.Constraint("Vertical", 10, 3, 13, 3))
sketch5.addConstraint(Sketcher.Constraint("Vertical", 11, 3, 14, 3))
sketch5.addConstraint(Sketcher.Constraint("Vertical", 12, 3, 15, 3))
sketch5.addConstraint(Sketcher.Constraint("Vertical", 13, 3, 16, 3))
sketch5.addConstraint(Sketcher.Constraint("Vertical", 14, 3, 17, 3))
sketch5.addConstraint(Sketcher.Constraint("Vertical", 0, 3, 18, 3))
sketch5.addConstraint(Sketcher.Constraint("Vertical", 1, 3, 19, 3))
sketch5.addConstraint(Sketcher.Constraint("Vertical", 15, 3, 20, 3))
sketch5.addConstraint(Sketcher.Constraint("Vertical", 16, 3, 21, 3))
sketch5.addConstraint(Sketcher.Constraint("Vertical", 4, 3, 22, 3))
sketch5.addConstraint(Sketcher.Constraint("Vertical", 5, 3, 23, 3))
sketch5.addConstraint(Sketcher.Constraint("Vertical", 24, 3, 25, 3))
sketch5.addConstraint(Sketcher.Constraint("Vertical", 25, 3, 26, 3))
sketch5.addConstraint(Sketcher.Constraint("Vertical", 26, 3, 27, 3))
sketch5.addConstraint(Sketcher.Constraint("Diameter", 0, 5.2))
sketch5.addConstraint(Sketcher.Constraint("DistanceX", 0, 3, -1, 1, 82.0))
sketch5.addConstraint(Sketcher.Constraint("DistanceY", -1, 1, 0, 3, 105.0))
sketch5.addConstraint(Sketcher.Constraint("DistanceX", 1, 3, -1, 1, 36.0))
sketch5.addConstraint(Sketcher.Constraint("DistanceX", 2, 3, -1, 1, 13.0))
sketch5.addConstraint(Sketcher.Constraint("DistanceX", -1, 1, 3, 3, 10.0))
sketch5.addConstraint(Sketcher.Constraint("DistanceX", -1, 1, 4, 3, 33.0))
sketch5.addConstraint(Sketcher.Constraint("DistanceX", -1, 1, 5, 3, 79.0))
sketch5.addConstraint(Sketcher.Constraint("DistanceY", -1, 1, 6, 3, 82.0))
sketch5.addConstraint(Sketcher.Constraint("DistanceX", -1, 1, 8, 3, 102.0))
sketch5.addConstraint(Sketcher.Constraint("DistanceY", -1, 1, 9, 3, 13.0))
sketch5.addConstraint(Sketcher.Constraint("DistanceY", 12, 3, -1, 1, 10.0))
sketch5.addConstraint(Sketcher.Constraint("DistanceY", 15, 3, -1, 1, 79.0))
sketch5.addConstraint(Sketcher.Constraint("DistanceY", 18, 3, -1, 1, 102.0))
sketch5.addConstraint(Sketcher.Constraint("DistanceX", 24, 3, -1, 1, 105.0))
pocket3 = body.newObject("PartDesign::Pocket", "Pocket002")
pocket3.Profile = sketch5
pocket3.Length = 4

# Sketch on XZ plane
sketch6 = body.newObject("Sketcher::SketchObject", "Sketch005")
sketch6.AttachmentSupport = (doc.getObject("XZ_Plane"), [""])
sketch6.MapMode = "FlatFace"
sketch6.AttachmentOffset = App.Placement(App.Vector(0, 0, -5), App.Rotation())
sketch6.addGeometry(Part.Circle(App.Vector(-109.100078, 109.100078, 0), App.Vector(0, 0, 1), 2), False)
sketch6.addGeometry(Part.Circle(App.Vector(109.100078, 109.100078, 0), App.Vector(0, 0, 1), 2), False)
sketch6.addGeometry(Part.Circle(App.Vector(109.100078, -109.100078, 0), App.Vector(0, 0, 1), 2), False)
sketch6.addGeometry(Part.Circle(App.Vector(-109.100078, -109.100078, 0), App.Vector(0, 0, 1), 2), False)
sketch6.addConstraint(Sketcher.Constraint("Equal", 0, 1))
sketch6.addConstraint(Sketcher.Constraint("Equal", 1, 2))
sketch6.addConstraint(Sketcher.Constraint("Equal", 2, 3))
sketch6.addConstraint(Sketcher.Constraint("Symmetric", 0, 3, 2, 3, -1, 1))
sketch6.addConstraint(Sketcher.Constraint("Symmetric", 1, 3, 3, 3, -1, 1))
sketch6.addConstraint(Sketcher.Constraint("Symmetric", 0, 3, 1, 3, -2))
sketch6.addConstraint(Sketcher.Constraint("Diameter", 0, 4.0))
sketch6.addConstraint(Sketcher.Constraint("DistanceX", 0, 3, -1, 1, 109.100078))
sketch6.addConstraint(Sketcher.Constraint("DistanceY", -1, 1, 0, 3, 109.100078))
pocket4 = body.newObject("PartDesign::Pocket", "Pocket003")
pocket4.Profile = sketch6
pocket4.Length = 88

# Sketch on XZ plane
sketch7 = body.newObject("Sketcher::SketchObject", "Sketch006")
sketch7.AttachmentSupport = (doc.getObject("XZ_Plane"), [""])
sketch7.MapMode = "FlatFace"
sketch7.addGeometry(Part.Circle(App.Vector(-109.100078, 109.100078, 0), App.Vector(0, 0, 1), 3), False)
sketch7.addGeometry(Part.Circle(App.Vector(109.100078, 109.100078, 0), App.Vector(0, 0, 1), 3), False)
sketch7.addGeometry(Part.Circle(App.Vector(109.100078, -109.100078, 0), App.Vector(0, 0, 1), 3), False)
sketch7.addGeometry(Part.Circle(App.Vector(-109.100078, -109.100078, 0), App.Vector(0, 0, 1), 3), False)
sketch7.addConstraint(Sketcher.Constraint("Equal", 0, 1))
sketch7.addConstraint(Sketcher.Constraint("Equal", 1, 2))
sketch7.addConstraint(Sketcher.Constraint("Equal", 2, 3))
sketch7.addConstraint(Sketcher.Constraint("Symmetric", 0, 3, 2, 3, -1, 1))
sketch7.addConstraint(Sketcher.Constraint("Symmetric", 1, 3, 3, 3, -1, 1))
sketch7.addConstraint(Sketcher.Constraint("Symmetric", 0, 3, 1, 3, -2))
sketch7.addConstraint(Sketcher.Constraint("Diameter", 0, 6.0))
sketch7.addConstraint(Sketcher.Constraint("DistanceX", 0, 3, -1, 1, 109.100078))
sketch7.addConstraint(Sketcher.Constraint("DistanceY", -1, 1, 0, 3, 109.100078))
pocket5 = body.newObject("PartDesign::Pocket", "Pocket004")
pocket5.Profile = sketch7
pocket5.Length = 3

# Sketch on XY plane
sketch8 = body.newObject("Sketcher::SketchObject", "Sketch007")
sketch8.AttachmentSupport = (doc.getObject("XY_Plane"), [""])
sketch8.MapMode = "FlatFace"
sketch8.AttachmentOffset = App.Placement(App.Vector(0, 0, 115), App.Rotation())
sketch8.addGeometry(Part.Circle(App.Vector(0, 4.3, 0), App.Vector(0, 0, 1), 1.8), False)
sketch8.addGeometry(Part.Circle(App.Vector(110.5, 4.3, 0), App.Vector(0, 0, 1), 1.8), False)
sketch8.addGeometry(Part.Circle(App.Vector(-110.5, 4.3, 0), App.Vector(0, 0, 1), 1.8), False)
sketch8.addConstraint(Sketcher.Constraint("Equal", 0, 1))
sketch8.addConstraint(Sketcher.Constraint("Equal", 1, 2))
sketch8.addConstraint(Sketcher.Constraint("Symmetric", 1, 3, 2, 3, -2))
sketch8.addConstraint(Sketcher.Constraint("PointOnObject", 0, 3, -2))
sketch8.addConstraint(Sketcher.Constraint("Horizontal", 0, 3, 1, 3))
sketch8.addConstraint(Sketcher.Constraint("Diameter", 0, 3.5))
sketch8.addConstraint(Sketcher.Constraint("DistanceX", -1, 1, 1, 3, 110.4907))
sketch8.addConstraint(Sketcher.Constraint("DistanceY", -1, 1, 0, 3, 4.279277))
pocket6 = body.newObject("PartDesign::Pocket", "Pocket005")
pocket6.Profile = sketch8
pocket6.Length = 3

# Sketch on XY plane
sketch9 = body.newObject("Sketcher::SketchObject", "Sketch008")
sketch9.AttachmentSupport = (doc.getObject("XY_Plane"), [""])
sketch9.MapMode = "FlatFace"
sketch9.AttachmentOffset = App.Placement(App.Vector(0, 0, -115), App.Rotation())
sketch9.addGeometry(Part.LineSegment(App.Vector(115, 10, 0), App.Vector(115, 0, 0)), False)
sketch9.addGeometry(Part.LineSegment(App.Vector(115, 0, 0), App.Vector(-115, 0, 0)), False)
sketch9.addGeometry(Part.LineSegment(App.Vector(-115, 0, 0), App.Vector(-115, 10, 0)), False)
sketch9.addGeometry(Part.LineSegment(App.Vector(-115, 10, 0), App.Vector(115, 10, 0)), False)
sketch9.addConstraint(Sketcher.Constraint("Coincident", 0, 2, 1, 1))
sketch9.addConstraint(Sketcher.Constraint("Coincident", 1, 2, 2, 1))
sketch9.addConstraint(Sketcher.Constraint("Coincident", 2, 2, 3, 1))
sketch9.addConstraint(Sketcher.Constraint("Coincident", 3, 2, 0, 1))
sketch9.addConstraint(Sketcher.Constraint("Vertical", 0))
sketch9.addConstraint(Sketcher.Constraint("Horizontal", 1))
sketch9.addConstraint(Sketcher.Constraint("Vertical", 2))
sketch9.addConstraint(Sketcher.Constraint("Horizontal", 3))
sketch9.addConstraint(Sketcher.Constraint("Symmetric", 0, 2, 1, 2, -1, 1))
sketch9.addConstraint(Sketcher.Constraint("DistanceX", 1, 2, 1, 1, 230.0))
sketch9.addConstraint(Sketcher.Constraint("DistanceY", 0, 2, 0, 1, 10.0))
pad3 = body.newObject("PartDesign::Pad", "Pad002")
pad3.Profile = sketch9
pad3.Length = 3

doc.recompute()
